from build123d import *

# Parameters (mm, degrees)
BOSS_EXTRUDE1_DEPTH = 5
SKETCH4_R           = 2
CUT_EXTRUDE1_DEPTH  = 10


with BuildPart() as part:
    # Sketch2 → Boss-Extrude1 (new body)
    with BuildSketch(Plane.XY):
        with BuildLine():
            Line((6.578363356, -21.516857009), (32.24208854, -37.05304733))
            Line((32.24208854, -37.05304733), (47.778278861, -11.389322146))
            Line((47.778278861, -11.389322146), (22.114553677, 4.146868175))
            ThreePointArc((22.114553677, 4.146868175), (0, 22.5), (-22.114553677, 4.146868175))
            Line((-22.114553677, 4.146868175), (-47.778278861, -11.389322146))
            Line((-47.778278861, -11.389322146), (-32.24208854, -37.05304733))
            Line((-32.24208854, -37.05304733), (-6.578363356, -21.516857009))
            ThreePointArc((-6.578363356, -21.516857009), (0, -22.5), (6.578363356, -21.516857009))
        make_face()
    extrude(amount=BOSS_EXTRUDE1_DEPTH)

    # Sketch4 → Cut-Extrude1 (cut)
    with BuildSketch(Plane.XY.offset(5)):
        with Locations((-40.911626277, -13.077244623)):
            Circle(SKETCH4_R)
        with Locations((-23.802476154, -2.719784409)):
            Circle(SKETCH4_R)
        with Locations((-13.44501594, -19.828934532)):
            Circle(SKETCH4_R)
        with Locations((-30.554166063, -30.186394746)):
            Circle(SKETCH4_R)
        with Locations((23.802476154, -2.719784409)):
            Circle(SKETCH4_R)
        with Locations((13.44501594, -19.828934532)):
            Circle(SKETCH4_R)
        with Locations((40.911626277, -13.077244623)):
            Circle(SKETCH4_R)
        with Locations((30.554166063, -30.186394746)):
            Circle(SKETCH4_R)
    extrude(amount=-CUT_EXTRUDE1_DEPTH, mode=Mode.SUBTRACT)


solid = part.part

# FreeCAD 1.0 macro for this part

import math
import FreeCAD as App
import Part
import Sketcher

V = App.Vector
Q = App.Units.Quantity

doc = App.newDocument("Part")
body = doc.addObject("PartDesign::Body", "Body")

sketch1 = doc.addObject("Sketcher::SketchObject", "Sketch")
body.addObject(sketch1)
sketch1.AttachmentSupport = (doc.XY_Plane, [""])
sketch1.MapMode = "FlatFace"
sketch1.addGeometry([
    Part.LineSegment(V(6.578363, -21.516857, 0), V(32.242089, -37.053047, 0)),
    Part.LineSegment(V(32.242089, -37.053047, 0), V(47.778279, -11.389322, 0)),
    Part.LineSegment(V(47.778279, -11.389322, 0), V(22.114554, 4.146868, 0)),
    Part.ArcOfCircle(Part.Circle(V(0, 0, 0), V(0, 0, 1), 22.5), math.radians(10.62063), math.radians(169.37937)),
    Part.LineSegment(V(-22.114554, 4.146868, 0), V(-47.778279, -11.389322, 0)),
    Part.LineSegment(V(-47.778279, -11.389322, 0), V(-32.242089, -37.053047, 0)),
    Part.LineSegment(V(-32.242089, -37.053047, 0), V(-6.578363, -21.516857, 0)),
    Part.ArcOfCircle(Part.Circle(V(0, 0, 0), V(0, 0, 1), 22.5), math.radians(-107), math.radians(-73)),
], False)
sketch1.addConstraint([
    Sketcher.Constraint("Coincident", 0, 2, 1, 1),
    Sketcher.Constraint("Coincident", 1, 2, 2, 1),
    Sketcher.Constraint("Coincident", 2, 2, 3, 1),
    Sketcher.Constraint("Coincident", 3, 2, 4, 1),
    Sketcher.Constraint("Coincident", 4, 2, 5, 1),
    Sketcher.Constraint("Coincident", 5, 2, 6, 1),
    Sketcher.Constraint("Coincident", 6, 2, 7, 1),
    Sketcher.Constraint("Coincident", 7, 2, 0, 1),
    Sketcher.Constraint("Coincident", 3, 3, -1, 1),
    Sketcher.Constraint("Coincident", 7, 3, -1, 1),
    Sketcher.Constraint("Equal", 3, 7),
    Sketcher.Constraint("Symmetric", 1, 2, 4, 2, -2),
    Sketcher.Constraint("Symmetric", 0, 2, 5, 2, -2),
    Sketcher.Constraint("Perpendicular", 0, 1),
    Sketcher.Constraint("Perpendicular", 1, 2),
    Sketcher.Constraint("Perpendicular", 4, 5),
    Sketcher.Constraint("Perpendicular", 5, 6),
    Sketcher.Constraint("Equal", 0, 1),
    Sketcher.Constraint("Equal", 1, 2),
    Sketcher.Constraint("Radius", 3, Q("22.5 mm")),
    Sketcher.Constraint("Distance", 0, Q("30 mm")),
    Sketcher.Constraint("DistanceX", -1, 1, 0, 2, Q("32.242089 mm")),
])
pad1 = doc.addObject("PartDesign::Pad", "Pad")
body.addObject(pad1)
pad1.Profile = sketch1
pad1.Length = 5

sketch2 = doc.addObject("Sketcher::SketchObject", "Sketch001")
body.addObject(sketch2)
sketch2.AttachmentSupport = (doc.XY_Plane, [""])
sketch2.MapMode = "FlatFace"
sketch2.AttachmentOffset = App.Placement(V(0, 0, 5), App.Rotation())
sketch2.addGeometry([
    Part.Circle(V(-40.911626, -13.077245, 0), V(0, 0, 1), 2),
    Part.Circle(V(-23.802476, -2.719784, 0), V(0, 0, 1), 2),
    Part.Circle(V(-13.445016, -19.828935, 0), V(0, 0, 1), 2),
    Part.Circle(V(-30.554166, -30.186395, 0), V(0, 0, 1), 2),
    Part.Circle(V(23.802476, -2.719784, 0), V(0, 0, 1), 2),
    Part.Circle(V(13.445016, -19.828935, 0), V(0, 0, 1), 2),
    Part.Circle(V(40.911626, -13.077245, 0), V(0, 0, 1), 2),
    Part.Circle(V(30.554166, -30.186395, 0), V(0, 0, 1), 2),
], False)
sketch2.addConstraint([
    Sketcher.Constraint("Equal", 0, 1),
    Sketcher.Constraint("Equal", 1, 2),
    Sketcher.Constraint("Equal", 2, 3),
    Sketcher.Constraint("Equal", 3, 4),
    Sketcher.Constraint("Equal", 4, 5),
    Sketcher.Constraint("Equal", 5, 6),
    Sketcher.Constraint("Equal", 6, 7),
    Sketcher.Constraint("Symmetric", 1, 3, 4, 3, -2),
    Sketcher.Constraint("Symmetric", 2, 3, 5, 3, -2),
    Sketcher.Constraint("Symmetric", 0, 3, 6, 3, -2),
    Sketcher.Constraint("Symmetric", 3, 3, 7, 3, -2),
    Sketcher.Constraint("Diameter", 0, Q("4 mm")),
    Sketcher.Constraint("DistanceX", 0, 3, 1, 3, Q("17.10915 mm")),
    Sketcher.Constraint("DistanceY", 0, 3, 1, 3, Q("10.35746 mm")),
    Sketcher.Constraint("DistanceX", 1, 3, 2, 3, Q("10.35746 mm")),
    Sketcher.Constraint("DistanceY", 2, 3, 1, 3, Q("17.10915 mm")),
    Sketcher.Constraint("DistanceX", 0, 3, 3, 3, Q("10.35746 mm")),
    Sketcher.Constraint("DistanceY", 3, 3, 0, 3, Q("17.10915 mm")),
    Sketcher.Constraint("DistanceX", 2, 3, 5, 3, Q("26.890032 mm")),
    Sketcher.Constraint("DistanceY", 0, 3, -1, 1, Q("13.077245 mm")),
])
pocket1 = doc.addObject("PartDesign::Pocket", "Pocket")
body.addObject(pocket1)
pocket1.Profile = sketch2
pocket1.Length = 10

doc.recompute()
